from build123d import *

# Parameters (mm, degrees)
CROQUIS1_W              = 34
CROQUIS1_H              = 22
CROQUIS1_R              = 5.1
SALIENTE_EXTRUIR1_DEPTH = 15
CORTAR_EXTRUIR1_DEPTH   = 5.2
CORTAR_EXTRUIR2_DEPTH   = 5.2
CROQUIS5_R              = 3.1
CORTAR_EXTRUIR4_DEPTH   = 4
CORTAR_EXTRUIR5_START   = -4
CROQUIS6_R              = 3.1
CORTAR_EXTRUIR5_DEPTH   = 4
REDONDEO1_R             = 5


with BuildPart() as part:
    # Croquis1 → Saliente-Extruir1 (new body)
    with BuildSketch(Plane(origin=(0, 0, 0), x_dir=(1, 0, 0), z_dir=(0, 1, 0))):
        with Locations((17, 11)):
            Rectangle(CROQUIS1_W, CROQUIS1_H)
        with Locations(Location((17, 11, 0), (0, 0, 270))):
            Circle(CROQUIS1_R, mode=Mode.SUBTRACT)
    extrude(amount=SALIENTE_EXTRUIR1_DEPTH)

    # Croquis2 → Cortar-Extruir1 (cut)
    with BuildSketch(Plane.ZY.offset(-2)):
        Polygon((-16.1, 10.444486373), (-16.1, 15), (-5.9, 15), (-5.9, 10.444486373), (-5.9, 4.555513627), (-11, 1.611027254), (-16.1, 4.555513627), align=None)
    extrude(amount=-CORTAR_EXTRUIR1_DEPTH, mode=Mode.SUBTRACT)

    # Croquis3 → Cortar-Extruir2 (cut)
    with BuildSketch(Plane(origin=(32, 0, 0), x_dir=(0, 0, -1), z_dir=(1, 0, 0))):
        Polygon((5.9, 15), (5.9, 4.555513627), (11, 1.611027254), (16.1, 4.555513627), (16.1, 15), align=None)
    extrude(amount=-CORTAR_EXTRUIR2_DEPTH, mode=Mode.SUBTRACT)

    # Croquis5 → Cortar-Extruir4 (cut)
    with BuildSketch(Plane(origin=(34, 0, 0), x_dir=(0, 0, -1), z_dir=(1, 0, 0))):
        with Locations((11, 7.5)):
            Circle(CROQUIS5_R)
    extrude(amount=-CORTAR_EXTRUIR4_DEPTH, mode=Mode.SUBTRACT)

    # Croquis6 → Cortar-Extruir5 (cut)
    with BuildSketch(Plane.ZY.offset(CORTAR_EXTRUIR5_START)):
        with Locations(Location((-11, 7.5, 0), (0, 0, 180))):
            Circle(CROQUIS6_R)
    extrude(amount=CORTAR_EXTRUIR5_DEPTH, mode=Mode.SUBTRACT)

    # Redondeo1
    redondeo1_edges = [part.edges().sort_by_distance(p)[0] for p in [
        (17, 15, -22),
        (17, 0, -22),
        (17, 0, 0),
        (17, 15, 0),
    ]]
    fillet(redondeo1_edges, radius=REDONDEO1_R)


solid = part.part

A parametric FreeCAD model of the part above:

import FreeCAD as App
import Part
import Sketcher

V = App.Vector
Q = App.Units.Quantity


def edges_at(feature, points):
    """Names of the edges that pass closest to the given points."""
    edges = feature.Shape.Edges
    near = lambda p: min(range(len(edges)), key=lambda i: edges[i].distToShape(Part.Vertex(*p))[0])
    return sorted({f"Edge{near(p) + 1}" for p in points})


def add_polygon(sketch, points):
    """Adds a closed chain of lines whose ends are joined by coincident constraints."""
    first, n = sketch.GeometryCount, len(points)
    for a, b in zip(points, points[1:] + points[:1]):
        sketch.addGeometry(Part.LineSegment(App.Vector(*a, 0), App.Vector(*b, 0)), False)
    for i in range(n):
        sketch.addConstraint(Sketcher.Constraint("Coincident", first + i, 2, first + (i + 1) % n, 1))

doc = App.newDocument("Part")
params = doc.addObject("Spreadsheet::Sheet", "Params")
for row, (alias, value) in enumerate([
    ("sketch1_diameter", "10.2 mm"),
    ("sketch1_width", "34 mm"),
    ("sketch1_height", "22 mm"),
    ("pad1_length", "15 mm"),
    ("sketch2_height", "10.2 mm"),
    ("pocket1_length", "5.2 mm"),
    ("sketch3_height", "10.2 mm"),
    ("pocket2_length", "5.2 mm"),
    ("sketch4_diameter", "6.2 mm"),
    ("pocket3_length", "4 mm"),
    ("sketch5_diameter", "6.2 mm"),
    ("pocket4_length", "4 mm"),
    ("fillet_radius", "5 mm"),
], start=1):
    params.set(f"A{row}", alias)
    params.set(f"B{row}", "=" + value)
    params.setAlias(f"B{row}", alias)

body = doc.addObject("PartDesign::Body", "Body")

sketch1 = doc.addObject("Sketcher::SketchObject", "Sketch")
body.addObject(sketch1)
sketch1.AttachmentSupport = (doc.XZ_Plane, [""])
sketch1.MapMode = "FlatFace"
add_polygon(sketch1, [(0, -22), (0, 0), (34, 0), (34, -22)])
sketch1.addGeometry(Part.Circle(V(17, -11, 0), V(0, 0, 1), 5), False)
sketch1.addConstraint(Sketcher.Constraint("Vertical", 0))
sketch1.addConstraint(Sketcher.Constraint("Horizontal", 1))
sketch1.addConstraint(Sketcher.Constraint("Vertical", 2))
sketch1.addConstraint(Sketcher.Constraint("Horizontal", 3))
sketch1.addConstraint(Sketcher.Constraint("Coincident", 0, 2, -1, 1))
sketch1.addConstraint(Sketcher.Constraint("Diameter", 4, Q("10.2 mm")))
sketch1.addConstraint(Sketcher.Constraint("DistanceX", 1, 1, 1, 2, Q("34 mm")))
sketch1.addConstraint(Sketcher.Constraint("DistanceY", 0, 1, 0, 2, Q("22 mm")))
sketch1.addConstraint(Sketcher.Constraint("DistanceX", -1, 1, 4, 3, Q("17 mm")))
sketch1.addConstraint(Sketcher.Constraint("DistanceY", 4, 3, -1, 1, Q("11 mm")))
sketch1.setExpression("Constraints[9]", "Params.sketch1_diameter")
sketch1.setExpression("Constraints[10]", "Params.sketch1_width")
sketch1.setExpression("Constraints[11]", "Params.sketch1_height")
pad1 = doc.addObject("PartDesign::Pad", "Pad")
body.addObject(pad1)
pad1.Profile = sketch1
pad1.setExpression("Length", "Params.pad1_length")
pad1.Reversed = True

sketch2 = doc.addObject("Sketcher::SketchObject", "Sketch001")
body.addObject(sketch2)
sketch2.AttachmentSupport = (doc.YZ_Plane, [""])
sketch2.MapMode = "FlatFace"
sketch2.AttachmentOffset = App.Placement(V(0, 0, 2), App.Rotation())
add_polygon(sketch2, [(15, -16), (5, -16), (2, -11), (5, -6), (15, -6)])
sketch2.addConstraint(Sketcher.Constraint("Horizontal", 0))
sketch2.addConstraint(Sketcher.Constraint("Horizontal", 3))
sketch2.addConstraint(Sketcher.Constraint("Vertical", 4))
sketch2.addConstraint(Sketcher.Constraint("Vertical", 0, 2, 2, 2))
sketch2.addConstraint(Sketcher.Constraint("Equal", 1, 2))
sketch2.addConstraint(Sketcher.Constraint("Angle", 1, Q("120 deg")))
sketch2.addConstraint(Sketcher.Constraint("DistanceY", 4, 2, 4, 1, Q("10.2 mm")))
sketch2.addConstraint(Sketcher.Constraint("DistanceY", 1, 2, -1, 1, Q("11 mm")))
sketch2.addConstraint(Sketcher.Constraint("DistanceX", -1, 1, 3, 2, Q("15 mm")))
sketch2.addConstraint(Sketcher.Constraint("DistanceX", 0, 2, 0, 1, Q("10.444486 mm")))
sketch2.setExpression("Constraints[11]", "Params.sketch2_height")
pocket1 = doc.addObject("PartDesign::Pocket", "Pocket")
body.addObject(pocket1)
pocket1.Profile = sketch2
pocket1.setExpression("Length", "Params.pocket1_length")
pocket1.Reversed = True

sketch3 = doc.addObject("Sketcher::SketchObject", "Sketch002")
body.addObject(sketch3)
sketch3.AttachmentSupport = (doc.YZ_Plane, [""])
sketch3.MapMode = "FlatFace"
sketch3.AttachmentOffset = App.Placement(V(0, 0, 32), App.Rotation())
add_polygon(sketch3, [(15, -6), (5, -6), (2, -11), (5, -16), (15, -16)])
sketch3.addConstraint(Sketcher.Constraint("Horizontal", 0))
sketch3.addConstraint(Sketcher.Constraint("Horizontal", 3))
sketch3.addConstraint(Sketcher.Constraint("Vertical", 4))
sketch3.addConstraint(Sketcher.Constraint("Vertical", 0, 2, 2, 2))
sketch3.addConstraint(Sketcher.Constraint("Equal", 1, 2))
sketch3.addConstraint(Sketcher.Constraint("Angle", 1, Q("-120 deg")))
sketch3.addConstraint(Sketcher.Constraint("DistanceY", 4, 1, 4, 2, Q("10.2 mm")))
sketch3.addConstraint(Sketcher.Constraint("DistanceY", 1, 2, -1, 1, Q("11 mm")))
sketch3.addConstraint(Sketcher.Constraint("DistanceX", -1, 1, 3, 2, Q("15 mm")))
sketch3.addConstraint(Sketcher.Constraint("DistanceX", 0, 2, 0, 1, Q("10.444486 mm")))
sketch3.setExpression("Constraints[11]", "Params.sketch3_height")
pocket2 = doc.addObject("PartDesign::Pocket", "Pocket001")
body.addObject(pocket2)
pocket2.Profile = sketch3
pocket2.setExpression("Length", "Params.pocket2_length")

sketch4 = doc.addObject("Sketcher::SketchObject", "Sketch003")
body.addObject(sketch4)
sketch4.AttachmentSupport = (doc.YZ_Plane, [""])
sketch4.MapMode = "FlatFace"
sketch4.AttachmentOffset = App.Placement(V(0, 0, 34), App.Rotation())
sketch4.addGeometry(Part.Circle(V(7.5, -11, 0), V(0, 0, 1), 3.1), False)
sketch4.addConstraint(Sketcher.Constraint("Diameter", 0, Q("6.2 mm")))
sketch4.addConstraint(Sketcher.Constraint("DistanceY", 0, 3, -1, 1, Q("11 mm")))
sketch4.addConstraint(Sketcher.Constraint("DistanceX", -1, 1, 0, 3, Q("7.5 mm")))
sketch4.setExpression("Constraints[0]", "Params.sketch4_diameter")
pocket3 = doc.addObject("PartDesign::Pocket", "Pocket002")
body.addObject(pocket3)
pocket3.Profile = sketch4
pocket3.setExpression("Length", "Params.pocket3_length")

sketch5 = doc.addObject("Sketcher::SketchObject", "Sketch004")
body.addObject(sketch5)
sketch5.AttachmentSupport = (doc.YZ_Plane, [""])
sketch5.MapMode = "FlatFace"
sketch5.AttachmentOffset = App.Placement(V(0, 0, 4), App.Rotation())
sketch5.addGeometry(Part.Circle(V(7.5, -11, 0), V(0, 0, 1), 3.1), False)
sketch5.addConstraint(Sketcher.Constraint("Diameter", 0, Q("6.2 mm")))
sketch5.addConstraint(Sketcher.Constraint("DistanceY", 0, 3, -1, 1, Q("11 mm")))
sketch5.addConstraint(Sketcher.Constraint("DistanceX", -1, 1, 0, 3, Q("7.5 mm")))
sketch5.setExpression("Constraints[0]", "Params.sketch5_diameter")
pocket4 = doc.addObject("PartDesign::Pocket", "Pocket003")
body.addObject(pocket4)
pocket4.Profile = sketch5
pocket4.setExpression("Length", "Params.pocket4_length")
doc.recompute()

fillet = doc.addObject("PartDesign::Fillet", "Fillet")
body.addObject(fillet)
fillet.Base = (pocket4, edges_at(pocket4, [
    (17, 15, -22),
    (17, 0, -22),
    (17, 0, 0),
    (17, 15, 0),
]))
fillet.setExpression("Radius", "Params.fillet_radius")

doc.recompute()
